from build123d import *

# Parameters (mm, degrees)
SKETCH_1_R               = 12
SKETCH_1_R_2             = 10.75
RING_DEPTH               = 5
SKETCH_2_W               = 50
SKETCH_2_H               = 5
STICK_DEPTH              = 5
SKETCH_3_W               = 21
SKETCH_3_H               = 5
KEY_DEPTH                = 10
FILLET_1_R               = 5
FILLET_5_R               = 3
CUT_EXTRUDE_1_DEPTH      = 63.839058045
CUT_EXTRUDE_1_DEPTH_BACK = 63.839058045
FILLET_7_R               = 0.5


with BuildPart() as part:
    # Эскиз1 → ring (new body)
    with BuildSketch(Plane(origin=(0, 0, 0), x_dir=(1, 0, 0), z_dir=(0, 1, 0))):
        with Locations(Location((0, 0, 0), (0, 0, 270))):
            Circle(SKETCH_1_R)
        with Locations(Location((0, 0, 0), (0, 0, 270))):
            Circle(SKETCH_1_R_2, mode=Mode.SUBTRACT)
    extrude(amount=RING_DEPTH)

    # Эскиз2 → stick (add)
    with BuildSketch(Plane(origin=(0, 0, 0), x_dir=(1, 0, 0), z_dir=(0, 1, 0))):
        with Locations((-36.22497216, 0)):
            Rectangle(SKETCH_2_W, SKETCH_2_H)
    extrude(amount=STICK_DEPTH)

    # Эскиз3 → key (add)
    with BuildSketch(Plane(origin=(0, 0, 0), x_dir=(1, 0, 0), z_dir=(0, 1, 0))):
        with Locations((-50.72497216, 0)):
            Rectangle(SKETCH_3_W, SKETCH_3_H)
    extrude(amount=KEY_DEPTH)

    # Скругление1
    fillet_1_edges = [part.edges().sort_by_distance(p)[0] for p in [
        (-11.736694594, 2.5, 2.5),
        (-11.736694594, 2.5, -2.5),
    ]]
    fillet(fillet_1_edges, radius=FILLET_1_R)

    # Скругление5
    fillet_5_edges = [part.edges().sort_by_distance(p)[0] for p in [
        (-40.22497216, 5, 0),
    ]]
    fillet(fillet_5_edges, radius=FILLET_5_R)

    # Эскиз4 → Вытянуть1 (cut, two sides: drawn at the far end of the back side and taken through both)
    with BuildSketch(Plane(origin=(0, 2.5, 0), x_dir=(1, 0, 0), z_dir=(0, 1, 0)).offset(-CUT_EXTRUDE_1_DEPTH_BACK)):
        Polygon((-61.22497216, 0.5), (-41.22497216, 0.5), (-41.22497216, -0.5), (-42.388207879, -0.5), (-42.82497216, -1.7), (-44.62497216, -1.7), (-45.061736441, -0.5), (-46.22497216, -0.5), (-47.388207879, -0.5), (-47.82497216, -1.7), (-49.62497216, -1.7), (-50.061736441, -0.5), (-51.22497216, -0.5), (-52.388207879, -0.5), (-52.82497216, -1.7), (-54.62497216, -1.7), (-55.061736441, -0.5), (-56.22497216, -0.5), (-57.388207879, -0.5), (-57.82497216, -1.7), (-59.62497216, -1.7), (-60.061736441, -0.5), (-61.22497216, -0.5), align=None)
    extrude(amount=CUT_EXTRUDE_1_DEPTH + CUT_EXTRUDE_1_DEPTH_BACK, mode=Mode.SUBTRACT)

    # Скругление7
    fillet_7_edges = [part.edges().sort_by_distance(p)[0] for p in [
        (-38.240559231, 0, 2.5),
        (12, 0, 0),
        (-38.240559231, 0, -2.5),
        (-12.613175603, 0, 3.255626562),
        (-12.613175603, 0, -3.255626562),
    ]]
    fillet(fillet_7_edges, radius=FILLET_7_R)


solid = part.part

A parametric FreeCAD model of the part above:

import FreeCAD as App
import Part
import Sketcher
Q = App.Units.Quantity


def edges_at(feature, points):
    """Names of the edges that pass closest to the given points."""
    edges = feature.Shape.Edges
    near = lambda p: min(range(len(edges)), key=lambda i: edges[i].distToShape(Part.Vertex(*p))[0])
    return sorted({f"Edge{near(p) + 1}" for p in points})


def add_polygon(sketch, points):
    """Adds a closed chain of lines whose ends are joined by coincident constraints."""
    first, n = sketch.GeometryCount, len(points)
    for a, b in zip(points, points[1:] + points[:1]):
        sketch.addGeometry(Part.LineSegment(App.Vector(*a, 0), App.Vector(*b, 0)), False)
    for i in range(n):
        sketch.addConstraint(Sketcher.Constraint("Coincident", first + i, 2, first + (i + 1) % n, 1))

doc = App.newDocument("Part")
body = doc.addObject("PartDesign::Body", "Body")

sketch1 = doc.addObject("Sketcher::SketchObject", "Sketch")
body.addObject(sketch1)
sketch1.AttachmentSupport = (doc.XZ_Plane, [""])
sketch1.MapMode = "FlatFace"
sketch1.addGeometry(Part.Circle(App.Vector(0, 0, 0), App.Vector(0, 0, 1), 12), False)
sketch1.addGeometry(Part.Circle(App.Vector(0, 0, 0), App.Vector(0, 0, 1), 10.75), False)
sketch1.addConstraint(Sketcher.Constraint("Coincident", 0, 3, -1, 1))
sketch1.addConstraint(Sketcher.Constraint("Coincident", 1, 3, -1, 1))
sketch1.addConstraint(Sketcher.Constraint("Diameter", 0, 24.0))
sketch1.addConstraint(Sketcher.Constraint("Diameter", 1, 21.5))
pad1 = doc.addObject("PartDesign::Pad", "Pad")
body.addObject(pad1)
pad1.Profile = sketch1
pad1.Length = 5
pad1.Reversed = True

sketch2 = doc.addObject("Sketcher::SketchObject", "Sketch001")
body.addObject(sketch2)
sketch2.AttachmentSupport = (doc.XZ_Plane, [""])
sketch2.MapMode = "FlatFace"
add_polygon(sketch2, [(-61.224972, -2.5), (-61.224972, 2.5), (-11.224972, 2.5), (-11.224972, -2.5)])
sketch2.addConstraint(Sketcher.Constraint("Vertical", 0))
sketch2.addConstraint(Sketcher.Constraint("Horizontal", 1))
sketch2.addConstraint(Sketcher.Constraint("Vertical", 2))
sketch2.addConstraint(Sketcher.Constraint("Horizontal", 3))
sketch2.addConstraint(Sketcher.Constraint("DistanceX", 1, 1, 1, 2, 50.0))
sketch2.addConstraint(Sketcher.Constraint("DistanceY", 0, 1, 0, 2, 5.0))
sketch2.addConstraint(Sketcher.Constraint("DistanceY", -1, 1, 0, 2, 2.5))
sketch2.addConstraint(Sketcher.Constraint("DistanceX", 0, 2, -1, 1, 61.224972))
pad2 = doc.addObject("PartDesign::Pad", "Pad001")
body.addObject(pad2)
pad2.Profile = sketch2
pad2.Length = 5
pad2.Reversed = True

sketch3 = doc.addObject("Sketcher::SketchObject", "Sketch002")
body.addObject(sketch3)
sketch3.AttachmentSupport = (doc.XZ_Plane, [""])
sketch3.MapMode = "FlatFace"
add_polygon(sketch3, [(-61.224972, -2.5), (-61.224972, 2.5), (-40.224972, 2.5), (-40.224972, -2.5)])
sketch3.addConstraint(Sketcher.Constraint("Vertical", 0))
sketch3.addConstraint(Sketcher.Constraint("Horizontal", 1))
sketch3.addConstraint(Sketcher.Constraint("Vertical", 2))
sketch3.addConstraint(Sketcher.Constraint("Horizontal", 3))
sketch3.addConstraint(Sketcher.Constraint("DistanceX", 1, 1, 1, 2, 21.0))
sketch3.addConstraint(Sketcher.Constraint("DistanceY", 0, 1, 0, 2, 5.0))
sketch3.addConstraint(Sketcher.Constraint("DistanceY", -1, 1, 0, 2, 2.5))
sketch3.addConstraint(Sketcher.Constraint("DistanceX", 0, 2, -1, 1, 61.224972))
pad3 = doc.addObject("PartDesign::Pad", "Pad002")
body.addObject(pad3)
pad3.Profile = sketch3
pad3.Length = 10
pad3.Reversed = True
doc.recompute()

fillet = doc.addObject("PartDesign::Fillet", "Fillet")
body.addObject(fillet)
fillet.Base = (pad3, edges_at(pad3, [(-11.737, 2.5, 2.5), (-11.737, 2.5, -2.5)]))
fillet.Radius = 5
doc.recompute()

fillet2 = doc.addObject("PartDesign::Fillet", "Fillet001")
body.addObject(fillet2)
fillet2.Base = (fillet, edges_at(fillet, [(-40.225, 5, 0)]))
fillet2.Radius = 3

sketch4 = doc.addObject("Sketcher::SketchObject", "Sketch003")
body.addObject(sketch4)
sketch4.AttachmentSupport = (doc.XZ_Plane, [""])
sketch4.MapMode = "FlatFace"
sketch4.AttachmentOffset = App.Placement(App.Vector(0, 0, -2.5), App.Rotation())
add_polygon(sketch4, [(-41.224972, -0.5), (-61.224972, -0.5), (-61.224972, 0.5), (-60.061736, 0.5), (-59.624972, 1.7), (-57.824972, 1.7), (-57.388208, 0.5), (-55.061736, 0.5), (-54.624972, 1.7), (-52.824972, 1.7), (-52.388208, 0.5), (-50.061736, 0.5), (-49.624972, 1.7), (-47.824972, 1.7), (-47.388208, 0.5), (-45.061736, 0.5), (-44.624972, 1.7), (-42.824972, 1.7), (-42.388208, 0.5), (-41.224972, 0.5)])
sketch4.addConstraint(Sketcher.Constraint("Horizontal", 0))
sketch4.addConstraint(Sketcher.Constraint("Vertical", 1))
sketch4.addConstraint(Sketcher.Constraint("Horizontal", 2))
sketch4.addConstraint(Sketcher.Constraint("Horizontal", 4))
sketch4.addConstraint(Sketcher.Constraint("Horizontal", 6))
sketch4.addConstraint(Sketcher.Constraint("Horizontal", 8))
sketch4.addConstraint(Sketcher.Constraint("Horizontal", 10))
sketch4.addConstraint(Sketcher.Constraint("Horizontal", 12))
sketch4.addConstraint(Sketcher.Constraint("Horizontal", 14))
sketch4.addConstraint(Sketcher.Constraint("Horizontal", 16))
sketch4.addConstraint(Sketcher.Constraint("Horizontal", 18))
sketch4.addConstraint(Sketcher.Constraint("Vertical", 19))
sketch4.addConstraint(Sketcher.Constraint("Parallel", 3, 7))
sketch4.addConstraint(Sketcher.Constraint("Parallel", 5, 9))
sketch4.addConstraint(Sketcher.Constraint("Parallel", 7, 11))
sketch4.addConstraint(Sketcher.Constraint("Parallel", 9, 13))
sketch4.addConstraint(Sketcher.Constraint("Parallel", 11, 15))
sketch4.addConstraint(Sketcher.Constraint("Parallel", 13, 17))
sketch4.addConstraint(Sketcher.Constraint("Horizontal", 2, 2, 5, 2))
sketch4.addConstraint(Sketcher.Constraint("Horizontal", 4, 2, 7, 2))
sketch4.addConstraint(Sketcher.Constraint("Horizontal", 6, 2, 9, 2))
sketch4.addConstraint(Sketcher.Constraint("Horizontal", 8, 2, 11, 2))
sketch4.addConstraint(Sketcher.Constraint("Horizontal", 10, 2, 13, 2))
sketch4.addConstraint(Sketcher.Constraint("Horizontal", 12, 2, 15, 2))
sketch4.addConstraint(Sketcher.Constraint("Horizontal", 14, 2, 17, 2))
sketch4.addConstraint(Sketcher.Constraint("Equal", 4, 8))
sketch4.addConstraint(Sketcher.Constraint("Equal", 6, 10))
sketch4.addConstraint(Sketcher.Constraint("Equal", 8, 12))
sketch4.addConstraint(Sketcher.Constraint("Equal", 10, 14))
sketch4.addConstraint(Sketcher.Constraint("Equal", 12, 16))
sketch4.addConstraint(Sketcher.Constraint("Equal", 2, 18))
sketch4.addConstraint(Sketcher.Constraint("Equal", 3, 5))
sketch4.addConstraint(Sketcher.Constraint("DistanceX", 0, 2, 0, 1, 20.0))
sketch4.addConstraint(Sketcher.Constraint("DistanceY", 1, 1, 1, 2, 1.0))
sketch4.addConstraint(Sketcher.Constraint("Angle", 3, Q("70 deg")))
sketch4.addConstraint(Sketcher.Constraint("DistanceX", 4, 1, 4, 2, 1.8))
sketch4.addConstraint(Sketcher.Constraint("DistanceX", 2, 2, 6, 2, 5.0))
sketch4.addConstraint(Sketcher.Constraint("DistanceY", 0, 2, -1, 1, 0.5))
sketch4.addConstraint(Sketcher.Constraint("DistanceY", -1, 1, 3, 2, 1.7))
sketch4.addConstraint(Sketcher.Constraint("DistanceX", 0, 2, -1, 1, 61.224972))
pocket1 = doc.addObject("PartDesign::Pocket", "Pocket")
body.addObject(pocket1)
pocket1.Profile = sketch4
pocket1.Type = "ThroughAll"
pocket1.Midplane = True
doc.recompute()

fillet3 = doc.addObject("PartDesign::Fillet", "Fillet002")
body.addObject(fillet3)
fillet3.Base = (pocket1, edges_at(pocket1, [
    (-38.241, 0, 2.5),
    (12, 0, 0),
    (-38.241, 0, -2.5),
    (-12.613, 0, 3.256),
    (-12.613, 0, -3.256),
]))
fillet3.Radius = 0.5

doc.recompute()
